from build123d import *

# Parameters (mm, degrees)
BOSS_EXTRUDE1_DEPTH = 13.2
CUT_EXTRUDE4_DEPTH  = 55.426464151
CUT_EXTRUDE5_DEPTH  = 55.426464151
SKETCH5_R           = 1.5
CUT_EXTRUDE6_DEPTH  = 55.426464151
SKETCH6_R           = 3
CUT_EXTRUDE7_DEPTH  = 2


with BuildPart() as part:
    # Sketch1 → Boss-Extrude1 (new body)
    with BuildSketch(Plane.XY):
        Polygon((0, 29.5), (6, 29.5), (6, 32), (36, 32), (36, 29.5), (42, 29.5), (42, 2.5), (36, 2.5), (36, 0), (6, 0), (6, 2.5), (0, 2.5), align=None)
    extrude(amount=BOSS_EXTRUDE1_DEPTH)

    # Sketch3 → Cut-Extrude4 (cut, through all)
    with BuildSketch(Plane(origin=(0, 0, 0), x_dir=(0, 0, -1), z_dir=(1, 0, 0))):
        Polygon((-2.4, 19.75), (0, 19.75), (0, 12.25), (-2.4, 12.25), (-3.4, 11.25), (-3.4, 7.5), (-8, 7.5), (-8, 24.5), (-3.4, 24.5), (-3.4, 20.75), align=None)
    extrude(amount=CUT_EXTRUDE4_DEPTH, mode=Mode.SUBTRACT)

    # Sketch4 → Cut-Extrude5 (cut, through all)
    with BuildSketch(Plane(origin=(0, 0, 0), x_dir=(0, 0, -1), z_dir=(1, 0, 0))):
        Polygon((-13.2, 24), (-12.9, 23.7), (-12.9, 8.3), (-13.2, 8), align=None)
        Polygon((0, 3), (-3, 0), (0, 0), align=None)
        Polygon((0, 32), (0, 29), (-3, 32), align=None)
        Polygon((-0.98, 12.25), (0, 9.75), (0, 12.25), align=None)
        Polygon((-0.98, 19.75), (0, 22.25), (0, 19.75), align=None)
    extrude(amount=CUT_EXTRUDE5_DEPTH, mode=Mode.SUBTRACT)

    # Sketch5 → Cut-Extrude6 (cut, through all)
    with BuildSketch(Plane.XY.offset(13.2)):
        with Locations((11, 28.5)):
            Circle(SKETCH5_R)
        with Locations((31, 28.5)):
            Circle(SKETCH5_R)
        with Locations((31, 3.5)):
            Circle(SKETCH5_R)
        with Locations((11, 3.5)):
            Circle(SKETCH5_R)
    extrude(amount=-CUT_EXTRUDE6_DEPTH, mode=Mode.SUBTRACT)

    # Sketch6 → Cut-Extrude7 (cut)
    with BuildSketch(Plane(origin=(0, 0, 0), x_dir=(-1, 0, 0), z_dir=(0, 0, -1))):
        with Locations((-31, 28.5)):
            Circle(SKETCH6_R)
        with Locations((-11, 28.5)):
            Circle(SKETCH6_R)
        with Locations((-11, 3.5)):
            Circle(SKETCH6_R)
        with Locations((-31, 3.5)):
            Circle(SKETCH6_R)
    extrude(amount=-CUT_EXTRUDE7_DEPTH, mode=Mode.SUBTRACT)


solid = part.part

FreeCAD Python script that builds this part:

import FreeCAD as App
import Part
import Sketcher
from FreeCAD import Vector


def add_polygon(sketch, points):
    """Adds a closed chain of lines whose ends are joined by coincident constraints."""
    first, n = sketch.GeometryCount, len(points)
    for a, b in zip(points, points[1:] + points[:1]):
        sketch.addGeometry(Part.LineSegment(App.Vector(*a, 0), App.Vector(*b, 0)), False)
    for i in range(n):
        sketch.addConstraint(Sketcher.Constraint("Coincident", first + i, 2, first + (i + 1) % n, 1))

doc = App.newDocument("Part")
body = doc.addObject("PartDesign::Body", "Body")

# Sketch on XY plane
sketch1 = doc.addObject("Sketcher::SketchObject", "Sketch")
body.addObject(sketch1)
sketch1.AttachmentSupport = (doc.XY_Plane, [""])
sketch1.MapMode = "FlatFace"
add_polygon(sketch1, [(6, 29.5), (0, 29.5), (0, 2.5), (6, 2.5), (6, 0), (36, 0), (36, 2.5), (42, 2.5), (42, 29.5), (36, 29.5), (36, 32), (6, 32)])  # lines 0-11
sketch1.addConstraint([
    Sketcher.Constraint("Horizontal", 0),
    Sketcher.Constraint("Vertical", 1),
    Sketcher.Constraint("Horizontal", 2),
    Sketcher.Constraint("Vertical", 3),
    Sketcher.Constraint("Horizontal", 4),
    Sketcher.Constraint("Vertical", 5),
    Sketcher.Constraint("Horizontal", 6),
    Sketcher.Constraint("Vertical", 7),
    Sketcher.Constraint("Horizontal", 8),
    Sketcher.Constraint("Vertical", 9),
    Sketcher.Constraint("Horizontal", 10),
    Sketcher.Constraint("Vertical", 11),
    Sketcher.Constraint("PointOnObject", 0, 2, -2),
    Sketcher.Constraint("PointOnObject", 3, 2, -1),
    Sketcher.Constraint("Horizontal", 2, 2, 5, 2),
    Sketcher.Constraint("Horizontal", 0, 2, 7, 2),
    Sketcher.Constraint("Vertical", 5, 2, 8, 2),
    Sketcher.Constraint("Vertical", 3, 2, 10, 2),
    Sketcher.Constraint("Equal", 2, 6),
    Sketcher.Constraint("Equal", 5, 9),
    Sketcher.Constraint("DistanceX", 0, 2, 0, 1, 6.0),
    Sketcher.Constraint("DistanceX", 4, 1, 4, 2, 30.0),
    Sketcher.Constraint("DistanceY", 1, 2, 1, 1, 27.0),
    Sketcher.Constraint("DistanceY", 3, 2, 3, 1, 2.5),
])
pad1 = doc.addObject("PartDesign::Pad", "Pad")
body.addObject(pad1)
pad1.Profile = sketch1
pad1.Length = 13.2

# Sketch on YZ plane
sketch2 = doc.addObject("Sketcher::SketchObject", "Sketch001")
body.addObject(sketch2)
sketch2.AttachmentSupport = (doc.YZ_Plane, [""])
sketch2.MapMode = "FlatFace"
add_polygon(sketch2, [(19.8, 0), (19.8, 2.4), (20.8, 3.4), (24.5, 3.4), (24.5, 8), (7.5, 8), (7.5, 3.4), (11.2, 3.4), (12.2, 2.4), (12.2, 0)])  # lines 0-9
sketch2.addConstraint([
    Sketcher.Constraint("Vertical", 0),
    Sketcher.Constraint("Horizontal", 2),
    Sketcher.Constraint("Vertical", 3),
    Sketcher.Constraint("Horizontal", 4),
    Sketcher.Constraint("Vertical", 5),
    Sketcher.Constraint("Horizontal", 6),
    Sketcher.Constraint("Vertical", 8),
    Sketcher.Constraint("Horizontal", 9),
    Sketcher.Constraint("PointOnObject", 8, 2, -1),
    Sketcher.Constraint("Perpendicular", 1, 7),
    Sketcher.Constraint("Horizontal", 2, 2, 5, 2),
    Sketcher.Constraint("Horizontal", 0, 2, 7, 2),
    Sketcher.Constraint("Equal", 2, 6),
    Sketcher.Constraint("Equal", 1, 7),
    Sketcher.Constraint("DistanceX", 4, 2, 4, 1, 17.0),
    Sketcher.Constraint("DistanceX", 9, 1, 9, 2, 7.5),
    Sketcher.Constraint("DistanceY", 0, 1, 0, 2, 2.4),
    Sketcher.Constraint("DistanceY", 3, 1, 3, 2, 4.6),
    Sketcher.Constraint("DistanceY", -1, 1, 3, 2, 8.0),
    Sketcher.Constraint("DistanceX", -1, 1, 2, 2, 24.5),
])
pocket1 = doc.addObject("PartDesign::Pocket", "Pocket")
body.addObject(pocket1)
pocket1.Profile = sketch2
pocket1.Type = "ThroughAll"
pocket1.Reversed = True

# Sketch on YZ plane
sketch3 = doc.addObject("Sketcher::SketchObject", "Sketch002")
body.addObject(sketch3)
sketch3.AttachmentSupport = (doc.YZ_Plane, [""])
sketch3.MapMode = "FlatFace"
add_polygon(sketch3, [(23.7, 12.9), (24, 13.2), (8, 13.2), (8.3, 12.9)])  # lines 0-3
add_polygon(sketch3, [(3, 0), (0, 3), (0, 0)])  # lines 4-6
add_polygon(sketch3, [(29, 0), (32, 0), (32, 3)])  # lines 7-9
add_polygon(sketch3, [(12.25, 0.98), (9.75, 0), (12.25, 0)])  # lines 10-12
add_polygon(sketch3, [(22.25, 0), (19.75, 0.98), (19.75, 0)])  # lines 13-15
sketch3.addConstraint([
    Sketcher.Constraint("Horizontal", 1),
    Sketcher.Constraint("Horizontal", 3),
    Sketcher.Constraint("Vertical", 5),
    Sketcher.Constraint("Horizontal", 6),
    Sketcher.Constraint("Horizontal", 7),
    Sketcher.Constraint("Vertical", 8),
    Sketcher.Constraint("Horizontal", 11),
    Sketcher.Constraint("Vertical", 12),
    Sketcher.Constraint("Vertical", 14),
    Sketcher.Constraint("Horizontal", 15),
    Sketcher.Constraint("Coincident", 5, 2, -1, 1),
    Sketcher.Constraint("PointOnObject", 7, 2, -1),
    Sketcher.Constraint("PointOnObject", 10, 2, -1),
    Sketcher.Constraint("PointOnObject", 14, 2, -1),
    Sketcher.Constraint("Perpendicular", 0, 2),
    Sketcher.Constraint("Parallel", 2, 4),
    Sketcher.Constraint("Perpendicular", 4, 9),
    Sketcher.Constraint("Horizontal", 4, 2, 8, 2),
    Sketcher.Constraint("Horizontal", 12, 2, 13, 2),
    Sketcher.Constraint("Equal", 6, 7),
    Sketcher.Constraint("Equal", 11, 15),
    Sketcher.Constraint("DistanceX", 1, 2, 1, 1, 16.0),
    Sketcher.Constraint("DistanceX", 6, 1, 6, 2, 3.0),
    Sketcher.Constraint("DistanceX", 3, 1, 3, 2, 15.4),
    Sketcher.Constraint("DistanceX", 11, 1, 11, 2, 2.5),
    Sketcher.Constraint("DistanceX", -1, 1, 0, 2, 24.0),
    Sketcher.Constraint("DistanceX", -1, 1, 7, 2, 32.0),
    Sketcher.Constraint("DistanceX", 10, 2, 13, 2, 10.0),
    Sketcher.Constraint("DistanceY", 12, 1, 12, 2, 0.98),
    Sketcher.Constraint("DistanceY", -1, 1, 0, 2, 13.2),
    Sketcher.Constraint("DistanceX", -1, 1, 10, 2, 9.75),
])
pocket2 = doc.addObject("PartDesign::Pocket", "Pocket001")
body.addObject(pocket2)
pocket2.Profile = sketch3
pocket2.Type = "ThroughAll"
pocket2.Reversed = True

# Sketch on XY plane
sketch4 = doc.addObject("Sketcher::SketchObject", "Sketch003")
body.addObject(sketch4)
sketch4.AttachmentSupport = (doc.XY_Plane, [""])
sketch4.MapMode = "FlatFace"
sketch4.AttachmentOffset = App.Placement(Vector(0, 0, 13.2), App.Rotation())
sketch4.addGeometry([
    Part.Circle(Vector(11, 28.5, 0), Vector(0, 0, 1), 1.5),
    Part.Circle(Vector(31, 28.5, 0), Vector(0, 0, 1), 1.5),
    Part.Circle(Vector(31, 3.5, 0), Vector(0, 0, 1), 1.5),
    Part.Circle(Vector(11, 3.5, 0), Vector(0, 0, 1), 1.5),
], False)
sketch4.addConstraint([
    Sketcher.Constraint("Equal", 0, 1),
    Sketcher.Constraint("Equal", 1, 2),
    Sketcher.Constraint("Equal", 2, 3),
    Sketcher.Constraint("Horizontal", 0, 3, 1, 3),
    Sketcher.Constraint("Horizontal", 2, 3, 3, 3),
    Sketcher.Constraint("Vertical", 1, 3, 2, 3),
    Sketcher.Constraint("Vertical", 0, 3, 3, 3),
    Sketcher.Constraint("Diameter", 0, 3.0),
    Sketcher.Constraint("DistanceX", -1, 1, 0, 3, 11.0),
    Sketcher.Constraint("DistanceX", -1, 1, 1, 3, 31.0),
    Sketcher.Constraint("DistanceY", 2, 3, 1, 3, 25.0),
    Sketcher.Constraint("DistanceY", -1, 1, 0, 3, 28.5),
])
pocket3 = doc.addObject("PartDesign::Pocket", "Pocket002")
body.addObject(pocket3)
pocket3.Profile = sketch4
pocket3.Type = "ThroughAll"

# Sketch on XY plane
sketch5 = doc.addObject("Sketcher::SketchObject", "Sketch004")
body.addObject(sketch5)
sketch5.AttachmentSupport = (doc.XY_Plane, [""])
sketch5.MapMode = "FlatFace"
sketch5.addGeometry([
    Part.Circle(Vector(31, 28.5, 0), Vector(0, 0, 1), 3),
    Part.Circle(Vector(11, 28.5, 0), Vector(0, 0, 1), 3),
    Part.Circle(Vector(11, 3.5, 0), Vector(0, 0, 1), 3),
    Part.Circle(Vector(31, 3.5, 0), Vector(0, 0, 1), 3),
], False)
sketch5.addConstraint([
    Sketcher.Constraint("Equal", 0, 1),
    Sketcher.Constraint("Equal", 1, 2),
    Sketcher.Constraint("Equal", 2, 3),
    Sketcher.Constraint("Horizontal", 0, 3, 1, 3),
    Sketcher.Constraint("Horizontal", 2, 3, 3, 3),
    Sketcher.Constraint("Vertical", 1, 3, 2, 3),
    Sketcher.Constraint("Vertical", 0, 3, 3, 3),
    Sketcher.Constraint("Diameter", 0, 6.0),
    Sketcher.Constraint("DistanceX", -1, 1, 0, 3, 31.0),
    Sketcher.Constraint("DistanceX", -1, 1, 1, 3, 11.0),
    Sketcher.Constraint("DistanceY", 2, 3, 1, 3, 25.0),
    Sketcher.Constraint("DistanceY", -1, 1, 0, 3, 28.5),
])
pocket4 = doc.addObject("PartDesign::Pocket", "Pocket003")
body.addObject(pocket4)
pocket4.Profile = sketch5
pocket4.Length = 2
pocket4.Reversed = True

doc.recompute()
